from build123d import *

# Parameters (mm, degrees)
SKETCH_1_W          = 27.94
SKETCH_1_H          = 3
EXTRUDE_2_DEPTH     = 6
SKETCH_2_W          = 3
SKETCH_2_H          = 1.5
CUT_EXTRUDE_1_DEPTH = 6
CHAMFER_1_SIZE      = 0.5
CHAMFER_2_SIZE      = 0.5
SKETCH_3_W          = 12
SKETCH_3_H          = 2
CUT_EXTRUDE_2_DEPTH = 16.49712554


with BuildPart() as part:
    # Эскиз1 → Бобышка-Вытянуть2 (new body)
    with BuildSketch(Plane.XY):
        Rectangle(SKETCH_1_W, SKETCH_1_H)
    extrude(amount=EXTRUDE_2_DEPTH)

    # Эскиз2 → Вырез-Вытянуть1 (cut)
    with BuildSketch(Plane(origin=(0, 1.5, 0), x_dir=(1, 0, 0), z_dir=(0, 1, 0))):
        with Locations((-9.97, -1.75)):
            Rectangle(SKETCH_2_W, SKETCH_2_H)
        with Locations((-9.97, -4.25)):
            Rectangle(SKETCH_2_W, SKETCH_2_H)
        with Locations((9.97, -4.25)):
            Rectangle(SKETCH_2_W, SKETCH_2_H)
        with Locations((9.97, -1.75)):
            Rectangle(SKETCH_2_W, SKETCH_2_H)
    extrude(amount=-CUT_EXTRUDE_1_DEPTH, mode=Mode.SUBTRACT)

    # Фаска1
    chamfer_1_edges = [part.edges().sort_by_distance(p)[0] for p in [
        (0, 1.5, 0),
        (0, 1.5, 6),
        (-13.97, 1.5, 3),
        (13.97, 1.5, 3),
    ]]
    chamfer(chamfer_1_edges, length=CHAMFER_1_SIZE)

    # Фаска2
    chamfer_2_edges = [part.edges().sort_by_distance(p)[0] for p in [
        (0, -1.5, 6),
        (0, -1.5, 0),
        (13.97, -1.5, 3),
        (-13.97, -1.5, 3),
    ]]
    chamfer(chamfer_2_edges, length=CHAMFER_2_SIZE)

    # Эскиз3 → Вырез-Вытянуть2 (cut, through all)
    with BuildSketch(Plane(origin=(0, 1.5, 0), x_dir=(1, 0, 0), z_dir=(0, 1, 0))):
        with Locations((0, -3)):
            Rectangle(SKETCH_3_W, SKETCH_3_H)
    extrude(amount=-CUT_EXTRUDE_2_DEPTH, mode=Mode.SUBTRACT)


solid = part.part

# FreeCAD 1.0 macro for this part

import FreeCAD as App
import Part
import Sketcher

V = App.Vector


def edges_at(feature, points):
    """Names of the edges that pass closest to the given points."""
    edges = feature.Shape.Edges
    near = lambda p: min(range(len(edges)), key=lambda i: edges[i].distToShape(Part.Vertex(*p))[0])
    return sorted({f"Edge{near(p) + 1}" for p in points})


def add_polygon(sketch, points):
    """Adds a closed chain of lines whose ends are joined by coincident constraints."""
    first, n = sketch.GeometryCount, len(points)
    for a, b in zip(points, points[1:] + points[:1]):
        sketch.addGeometry(Part.LineSegment(App.Vector(*a, 0), App.Vector(*b, 0)), False)
    for i in range(n):
        sketch.addConstraint(Sketcher.Constraint("Coincident", first + i, 2, first + (i + 1) % n, 1))

doc = App.newDocument("Part")
body = doc.addObject("PartDesign::Body", "Body")

# Sketch on XY plane
sketch1 = body.newObject("Sketcher::SketchObject", "Sketch")
sketch1.AttachmentSupport = (doc.getObject("XY_Plane"), [""])
sketch1.MapMode = "FlatFace"
add_polygon(sketch1, [(-14, 1.5), (-14, -1.5), (14, -1.5), (14, 1.5)])  # lines 0-3
sketch1.addConstraint(Sketcher.Constraint("Vertical", 0))
sketch1.addConstraint(Sketcher.Constraint("Horizontal", 1))
sketch1.addConstraint(Sketcher.Constraint("Vertical", 2))
sketch1.addConstraint(Sketcher.Constraint("Horizontal", 3))
sketch1.addConstraint(Sketcher.Constraint("Symmetric", 0, 2, 2, 2, -1, 1))
sketch1.addConstraint(Sketcher.Constraint("DistanceY", 0, 2, 0, 1, 3.0))
sketch1.addConstraint(Sketcher.Constraint("DistanceX", 1, 1, 1, 2, 27.94))
pad1 = body.newObject("PartDesign::Pad", "Pad")
pad1.Profile = sketch1
pad1.Length = 6

# Sketch on XZ plane
sketch2 = body.newObject("Sketcher::SketchObject", "Sketch001")
sketch2.AttachmentSupport = (doc.getObject("XZ_Plane"), [""])
sketch2.MapMode = "FlatFace"
sketch2.AttachmentOffset = App.Placement(V(0, 0, -1.5), App.Rotation())
add_polygon(sketch2, [(-11.5, 1), (-11.5, 2.5), (-8.5, 2.5), (-8.5, 1)])  # lines 0-3
add_polygon(sketch2, [(-11.5, 3.5), (-11.5, 5), (-8.5, 5), (-8.5, 3.5)])  # lines 4-7
add_polygon(sketch2, [(8.5, 3.5), (8.5, 5), (11.5, 5), (11.5, 3.5)])  # lines 8-11
add_polygon(sketch2, [(8.5, 1), (8.5, 2.5), (11.5, 2.5), (11.5, 1)])  # lines 12-15
sketch2.addConstraint(Sketcher.Constraint("Vertical", 0))
sketch2.addConstraint(Sketcher.Constraint("Horizontal", 1))
sketch2.addConstraint(Sketcher.Constraint("Vertical", 2))
sketch2.addConstraint(Sketcher.Constraint("Horizontal", 3))
sketch2.addConstraint(Sketcher.Constraint("Vertical", 4))
sketch2.addConstraint(Sketcher.Constraint("Horizontal", 5))
sketch2.addConstraint(Sketcher.Constraint("Vertical", 6))
sketch2.addConstraint(Sketcher.Constraint("Horizontal", 7))
sketch2.addConstraint(Sketcher.Constraint("Vertical", 8))
sketch2.addConstraint(Sketcher.Constraint("Horizontal", 9))
sketch2.addConstraint(Sketcher.Constraint("Vertical", 10))
sketch2.addConstraint(Sketcher.Constraint("Horizontal", 11))
sketch2.addConstraint(Sketcher.Constraint("Vertical", 12))
sketch2.addConstraint(Sketcher.Constraint("Horizontal", 13))
sketch2.addConstraint(Sketcher.Constraint("Vertical", 14))
sketch2.addConstraint(Sketcher.Constraint("Horizontal", 15))
sketch2.addConstraint(Sketcher.Constraint("Symmetric", 5, 2, 8, 2, -2))
sketch2.addConstraint(Sketcher.Constraint("Symmetric", 7, 2, 10, 2, -2))
sketch2.addConstraint(Sketcher.Constraint("Symmetric", 1, 2, 12, 2, -2))
sketch2.addConstraint(Sketcher.Constraint("Symmetric", 3, 2, 14, 2, -2))
sketch2.addConstraint(Sketcher.Constraint("Vertical", 3, 2, 4, 2))
sketch2.addConstraint(Sketcher.Constraint("Vertical", 2, 2, 5, 2))
sketch2.addConstraint(Sketcher.Constraint("Equal", 2, 4))
sketch2.addConstraint(Sketcher.Constraint("DistanceX", 1, 1, 1, 2, 3.0))
sketch2.addConstraint(Sketcher.Constraint("DistanceY", 0, 1, 0, 2, 1.5))
sketch2.addConstraint(Sketcher.Constraint("DistanceY", -1, 1, 2, 2, 1.0))
sketch2.addConstraint(Sketcher.Constraint("DistanceY", -1, 1, 4, 2, 5.0))
sketch2.addConstraint(Sketcher.Constraint("DistanceX", 0, 2, -1, 1, 11.47))
pocket1 = body.newObject("PartDesign::Pocket", "Pocket")
pocket1.Profile = sketch2
pocket1.Length = 6
pocket1.Reversed = True
doc.recompute()

chamfer = body.newObject("PartDesign::Chamfer", "Chamfer")
chamfer.Base = (pocket1, edges_at(pocket1, [
    (0, 1.5, 0),
    (0, 1.5, 6),
    (-13.97, 1.5, 3),
    (13.97, 1.5, 3),
]))
chamfer.Size = 0.5
doc.recompute()

chamfer2 = body.newObject("PartDesign::Chamfer", "Chamfer001")
chamfer2.Base = (chamfer, edges_at(chamfer, [
    (0, -1.5, 6),
    (0, -1.5, 0),
    (13.97, -1.5, 3),
    (-13.97, -1.5, 3),
]))
chamfer2.Size = 0.5

# Sketch on XZ plane
sketch3 = body.newObject("Sketcher::SketchObject", "Sketch002")
sketch3.AttachmentSupport = (doc.getObject("XZ_Plane"), [""])
sketch3.MapMode = "FlatFace"
sketch3.AttachmentOffset = App.Placement(V(0, 0, -1.5), App.Rotation())
add_polygon(sketch3, [(-6, 2), (-6, 4), (6, 4), (6, 2)])  # lines 0-3
sketch3.addConstraint(Sketcher.Constraint("Vertical", 0))
sketch3.addConstraint(Sketcher.Constraint("Horizontal", 1))
sketch3.addConstraint(Sketcher.Constraint("Vertical", 2))
sketch3.addConstraint(Sketcher.Constraint("Horizontal", 3))
sketch3.addConstraint(Sketcher.Constraint("DistanceX", 1, 1, 1, 2, 12.0))
sketch3.addConstraint(Sketcher.Constraint("DistanceY", 0, 1, 0, 2, 2.0))
sketch3.addConstraint(Sketcher.Constraint("DistanceX", 0, 2, -1, 1, 6.0))
sketch3.addConstraint(Sketcher.Constraint("DistanceY", -1, 1, 0, 2, 4.0))
pocket2 = body.newObject("PartDesign::Pocket", "Pocket001")
pocket2.Profile = sketch3
pocket2.Type = "ThroughAll"
pocket2.Reversed = True

doc.recompute()
